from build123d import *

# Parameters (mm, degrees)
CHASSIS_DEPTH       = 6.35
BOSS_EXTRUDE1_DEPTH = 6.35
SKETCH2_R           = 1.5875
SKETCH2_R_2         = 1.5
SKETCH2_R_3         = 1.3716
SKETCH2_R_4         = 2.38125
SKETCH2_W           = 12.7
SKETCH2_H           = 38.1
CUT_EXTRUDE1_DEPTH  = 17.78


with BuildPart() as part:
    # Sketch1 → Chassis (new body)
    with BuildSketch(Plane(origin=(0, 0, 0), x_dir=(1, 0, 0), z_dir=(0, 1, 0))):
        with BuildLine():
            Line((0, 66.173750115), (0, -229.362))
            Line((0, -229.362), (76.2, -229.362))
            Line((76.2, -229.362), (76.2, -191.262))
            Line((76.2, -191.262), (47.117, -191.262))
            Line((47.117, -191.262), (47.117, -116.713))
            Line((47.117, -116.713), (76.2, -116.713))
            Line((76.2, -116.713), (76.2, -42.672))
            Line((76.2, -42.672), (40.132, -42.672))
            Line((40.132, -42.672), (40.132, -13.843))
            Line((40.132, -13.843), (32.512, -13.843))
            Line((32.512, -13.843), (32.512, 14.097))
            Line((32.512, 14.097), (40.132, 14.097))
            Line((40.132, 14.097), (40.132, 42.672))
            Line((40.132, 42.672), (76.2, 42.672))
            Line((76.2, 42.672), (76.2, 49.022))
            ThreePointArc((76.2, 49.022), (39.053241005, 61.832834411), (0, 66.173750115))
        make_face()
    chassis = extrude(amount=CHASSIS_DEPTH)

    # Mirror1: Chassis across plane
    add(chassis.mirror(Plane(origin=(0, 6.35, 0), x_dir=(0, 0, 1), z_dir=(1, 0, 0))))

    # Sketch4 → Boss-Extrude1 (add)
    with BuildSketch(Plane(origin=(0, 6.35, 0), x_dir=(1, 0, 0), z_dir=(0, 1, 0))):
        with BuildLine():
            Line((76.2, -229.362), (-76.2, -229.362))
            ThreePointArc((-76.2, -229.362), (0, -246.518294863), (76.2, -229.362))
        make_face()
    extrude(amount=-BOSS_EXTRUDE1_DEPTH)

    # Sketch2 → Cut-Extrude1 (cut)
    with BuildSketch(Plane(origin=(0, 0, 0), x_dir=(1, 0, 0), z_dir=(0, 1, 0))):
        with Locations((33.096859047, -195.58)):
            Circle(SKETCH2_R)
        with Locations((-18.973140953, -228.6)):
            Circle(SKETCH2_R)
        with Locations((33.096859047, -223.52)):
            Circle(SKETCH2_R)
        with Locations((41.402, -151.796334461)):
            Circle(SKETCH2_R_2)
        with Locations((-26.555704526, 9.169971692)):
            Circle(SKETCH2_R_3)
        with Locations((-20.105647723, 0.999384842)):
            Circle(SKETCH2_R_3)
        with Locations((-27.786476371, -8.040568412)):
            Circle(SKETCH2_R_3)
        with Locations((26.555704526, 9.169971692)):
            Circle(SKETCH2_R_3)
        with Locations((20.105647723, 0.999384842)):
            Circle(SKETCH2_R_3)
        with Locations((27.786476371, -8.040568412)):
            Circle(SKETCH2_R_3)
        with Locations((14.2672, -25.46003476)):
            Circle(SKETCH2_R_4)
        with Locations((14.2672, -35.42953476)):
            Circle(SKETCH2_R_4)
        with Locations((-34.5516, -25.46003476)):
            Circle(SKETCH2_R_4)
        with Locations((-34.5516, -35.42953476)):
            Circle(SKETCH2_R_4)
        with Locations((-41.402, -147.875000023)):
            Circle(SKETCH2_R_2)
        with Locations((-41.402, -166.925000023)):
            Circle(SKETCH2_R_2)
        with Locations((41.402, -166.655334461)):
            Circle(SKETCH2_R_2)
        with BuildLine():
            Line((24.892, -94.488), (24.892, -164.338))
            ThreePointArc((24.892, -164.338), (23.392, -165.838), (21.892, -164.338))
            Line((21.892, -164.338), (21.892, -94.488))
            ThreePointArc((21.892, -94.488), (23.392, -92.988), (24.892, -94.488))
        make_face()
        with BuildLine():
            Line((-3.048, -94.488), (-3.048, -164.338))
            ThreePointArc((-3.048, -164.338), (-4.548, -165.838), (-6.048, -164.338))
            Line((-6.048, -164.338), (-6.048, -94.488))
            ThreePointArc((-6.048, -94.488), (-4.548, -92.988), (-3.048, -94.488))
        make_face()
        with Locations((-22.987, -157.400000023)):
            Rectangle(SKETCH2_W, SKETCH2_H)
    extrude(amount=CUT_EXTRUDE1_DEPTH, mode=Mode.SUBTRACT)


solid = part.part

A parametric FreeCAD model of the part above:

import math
import FreeCAD as App
import Part
import Sketcher
from FreeCAD import Vector
Q = App.Units.Quantity

doc = App.newDocument("Part")
body = doc.addObject("PartDesign::Body", "Body")

sketch1 = body.newObject("Sketcher::SketchObject", "Sketch")
sketch1.AttachmentSupport = (doc.getObject("XZ_Plane"), [""])
sketch1.MapMode = "FlatFace"
sketch1.addGeometry([
    Part.LineSegment(Vector(0, -66, 0), Vector(0, 229, 0)),
    Part.LineSegment(Vector(0, 229, 0), Vector(76, 229, 0)),
    Part.LineSegment(Vector(76, 229, 0), Vector(76, 191, 0)),
    Part.LineSegment(Vector(76, 191, 0), Vector(47, 191, 0)),
    Part.LineSegment(Vector(47, 191, 0), Vector(47, 117, 0)),
    Part.LineSegment(Vector(47, 117, 0), Vector(76, 117, 0)),
    Part.LineSegment(Vector(76, 117, 0), Vector(76, 43, 0)),
    Part.LineSegment(Vector(76, 43, 0), Vector(40, 43, 0)),
    Part.LineSegment(Vector(40, 43, 0), Vector(40, 14, 0)),
    Part.LineSegment(Vector(40, 14, 0), Vector(33, 14, 0)),
    Part.LineSegment(Vector(33, 14, 0), Vector(33, -14, 0)),
    Part.LineSegment(Vector(33, -14, 0), Vector(40, -14, 0)),
    Part.LineSegment(Vector(40, -14, 0), Vector(40, -43, 0)),
    Part.LineSegment(Vector(40, -43, 0), Vector(76, -43, 0)),
    Part.LineSegment(Vector(76, -43, 0), Vector(76, -49, 0)),
    Part.ArcOfCircle(Part.Circle(Vector(0, 112, 0), Vector(0, 0, 1), 178), math.radians(-90), math.radians(-65)),
], False)
sketch1.addConstraint([
    Sketcher.Constraint("Coincident", 0, 2, 1, 1),
    Sketcher.Constraint("Coincident", 1, 2, 2, 1),
    Sketcher.Constraint("Coincident", 2, 2, 3, 1),
    Sketcher.Constraint("Coincident", 3, 2, 4, 1),
    Sketcher.Constraint("Coincident", 4, 2, 5, 1),
    Sketcher.Constraint("Coincident", 5, 2, 6, 1),
    Sketcher.Constraint("Coincident", 6, 2, 7, 1),
    Sketcher.Constraint("Coincident", 7, 2, 8, 1),
    Sketcher.Constraint("Coincident", 8, 2, 9, 1),
    Sketcher.Constraint("Coincident", 9, 2, 10, 1),
    Sketcher.Constraint("Coincident", 10, 2, 11, 1),
    Sketcher.Constraint("Coincident", 11, 2, 12, 1),
    Sketcher.Constraint("Coincident", 12, 2, 13, 1),
    Sketcher.Constraint("Coincident", 13, 2, 14, 1),
    Sketcher.Constraint("Coincident", 14, 2, 15, 2),
    Sketcher.Constraint("Coincident", 15, 1, 0, 1),
    Sketcher.Constraint("Vertical", 0),
    Sketcher.Constraint("Horizontal", 1),
    Sketcher.Constraint("Vertical", 2),
    Sketcher.Constraint("Horizontal", 3),
    Sketcher.Constraint("Vertical", 4),
    Sketcher.Constraint("Horizontal", 5),
    Sketcher.Constraint("Vertical", 6),
    Sketcher.Constraint("Horizontal", 7),
    Sketcher.Constraint("Vertical", 8),
    Sketcher.Constraint("Horizontal", 9),
    Sketcher.Constraint("Vertical", 10),
    Sketcher.Constraint("Horizontal", 11),
    Sketcher.Constraint("Vertical", 12),
    Sketcher.Constraint("Horizontal", 13),
    Sketcher.Constraint("Vertical", 14),
    Sketcher.Constraint("Symmetric", 7, 2, 12, 2, -1),
    Sketcher.Constraint("PointOnObject", 15, 3, -2),
    Sketcher.Constraint("PointOnObject", 0, 2, -2),
    Sketcher.Constraint("Vertical", 2, 2, 5, 2),
    Sketcher.Constraint("Vertical", 6, 2, 13, 2),
    Sketcher.Constraint("DistanceX", 1, 1, 1, 2, Q("3 in")),
    Sketcher.Constraint("DistanceX", 9, 2, 9, 1, Q("0.3 in")),
    Sketcher.Constraint("DistanceY", 2, 2, 2, 1, Q("1.5 in")),
    Sketcher.Constraint("DistanceY", 10, 2, 10, 1, Q("1.1 in")),
    Sketcher.Constraint("DistanceX", 7, 2, 7, 1, Q("1.42 in")),
    Sketcher.Constraint("DistanceY", 14, 2, 14, 1, Q("0.25 in")),
    Sketcher.Constraint("DistanceX", 3, 2, 3, 1, Q("1.145 in")),
    Sketcher.Constraint("DistanceY", 4, 2, 4, 1, Q("2.935 in")),
    Sketcher.Constraint("DistanceY", 6, 2, 6, 1, Q("2.915 in")),
    Sketcher.Constraint("DistanceY", 8, 2, 8, 1, Q("1.135 in")),
    Sketcher.Constraint("DistanceY", 12, 2, 12, 1, Q("1.125 in")),
    Sketcher.Constraint("Radius", 15, 177.842567),
])
pad1 = body.newObject("PartDesign::Pad", "Pad")
pad1.Profile = sketch1
pad1.Length = Q("0.25 in")
pad1.Reversed = True
doc.recompute()

mirrored = body.newObject("PartDesign::Mirrored", "Mirrored")
mirrored.Originals = [pad1]
mirrored.MirrorPlane = (doc.getObject("YZ_Plane"), [""])
body.Tip = mirrored

sketch2 = body.newObject("Sketcher::SketchObject", "Sketch001")
sketch2.AttachmentSupport = (doc.getObject("XZ_Plane"), [""])
sketch2.MapMode = "FlatFace"
sketch2.AttachmentOffset = App.Placement(Vector(0, 0, -0.25 * 25.4), App.Rotation())
sketch2.addGeometry([
    Part.LineSegment(Vector(76, 229, 0), Vector(-76, 229, 0)),
    Part.ArcOfCircle(Part.Circle(Vector(0, 69, 0), Vector(0, 0, 1), 178), math.radians(65), math.radians(115)),
], False)
sketch2.addConstraint([
    Sketcher.Constraint("Coincident", 0, 1, 1, 1),
    Sketcher.Constraint("Coincident", 1, 2, 0, 2),
    Sketcher.Constraint("Horizontal", 0),
    Sketcher.Constraint("PointOnObject", 1, 3, -2),
    Sketcher.Constraint("Radius", 1, Q("7 in")),
    Sketcher.Constraint("DistanceX", 0, 2, 0, 1, Q("6 in")),
    Sketcher.Constraint("DistanceY", -1, 1, 0, 1, Q("9.03 in")),
])
pad2 = body.newObject("PartDesign::Pad", "Pad001")
pad2.Profile = sketch2
pad2.Length = Q("0.25 in")

sketch3 = body.newObject("Sketcher::SketchObject", "Sketch002")
sketch3.AttachmentSupport = (doc.getObject("XZ_Plane"), [""])
sketch3.MapMode = "FlatFace"
sketch3.addGeometry([
    Part.Circle(Vector(33.1, 195.6, 0), Vector(0, 0, 1), 1.6),
    Part.Circle(Vector(-19, 228.6, 0), Vector(0, 0, 1), 1.6),
    Part.Circle(Vector(33.1, 223.5, 0), Vector(0, 0, 1), 1.6),
    Part.Circle(Vector(41.4, 151.8, 0), Vector(0, 0, 1), 1.5),
    Part.Circle(Vector(-26.6, -9.2, 0), Vector(0, 0, 1), 1.4),
    Part.Circle(Vector(-20.1, -1, 0), Vector(0, 0, 1), 1.4),
    Part.Circle(Vector(-27.8, 8, 0), Vector(0, 0, 1), 1.4),
    Part.Circle(Vector(26.6, -9.2, 0), Vector(0, 0, 1), 1.4),
    Part.Circle(Vector(20.1, -1, 0), Vector(0, 0, 1), 1.4),
    Part.Circle(Vector(27.8, 8, 0), Vector(0, 0, 1), 1.4),
    Part.Circle(Vector(14.3, 25.5, 0), Vector(0, 0, 1), 2.4),
    Part.Circle(Vector(14.3, 35.4, 0), Vector(0, 0, 1), 2.4),
    Part.Circle(Vector(-34.6, 25.5, 0), Vector(0, 0, 1), 2.4),
    Part.Circle(Vector(-34.6, 35.4, 0), Vector(0, 0, 1), 2.4),
    Part.Circle(Vector(-41.4, 147.9, 0), Vector(0, 0, 1), 1.5),
    Part.Circle(Vector(-41.4, 166.9, 0), Vector(0, 0, 1), 1.5),
    Part.Circle(Vector(41.4, 166.7, 0), Vector(0, 0, 1), 1.5),
    Part.LineSegment(Vector(24.9, 164.3, 0), Vector(24.9, 94.5, 0)),
    Part.ArcOfCircle(Part.Circle(Vector(23.4, 94.5, 0), Vector(0, 0, 1), 1.5), math.radians(180), math.radians(360)),
    Part.LineSegment(Vector(21.9, 94.5, 0), Vector(21.9, 164.3, 0)),
    Part.ArcOfCircle(Part.Circle(Vector(23.4, 164.3, 0), Vector(0, 0, 1), 1.5), math.radians(0), math.radians(180)),
    Part.LineSegment(Vector(-3, 164.3, 0), Vector(-3, 94.5, 0)),
    Part.ArcOfCircle(Part.Circle(Vector(-4.5, 94.5, 0), Vector(0, 0, 1), 1.5), math.radians(180), math.radians(360)),
    Part.LineSegment(Vector(-6, 94.5, 0), Vector(-6, 164.3, 0)),
    Part.ArcOfCircle(Part.Circle(Vector(-4.5, 164.3, 0), Vector(0, 0, 1), 1.5), math.radians(0), math.radians(180)),
    Part.LineSegment(Vector(-29.3, 138.4, 0), Vector(-29.3, 176.5, 0)),
    Part.LineSegment(Vector(-29.3, 176.5, 0), Vector(-16.6, 176.5, 0)),
    Part.LineSegment(Vector(-16.6, 176.5, 0), Vector(-16.6, 138.4, 0)),
    Part.LineSegment(Vector(-16.6, 138.4, 0), Vector(-29.3, 138.4, 0)),
], False)
sketch3.addConstraint([
    Sketcher.Constraint("Tangent", 17, 2, 18, 2),
    Sketcher.Constraint("Tangent", 18, 1, 19, 1),
    Sketcher.Constraint("Tangent", 19, 2, 20, 2),
    Sketcher.Constraint("Tangent", 20, 1, 17, 1),
    Sketcher.Constraint("Tangent", 21, 2, 22, 2),
    Sketcher.Constraint("Tangent", 22, 1, 23, 1),
    Sketcher.Constraint("Tangent", 23, 2, 24, 2),
    Sketcher.Constraint("Tangent", 24, 1, 21, 1),
    Sketcher.Constraint("Coincident", 25, 2, 26, 1),
    Sketcher.Constraint("Coincident", 26, 2, 27, 1),
    Sketcher.Constraint("Coincident", 27, 2, 28, 1),
    Sketcher.Constraint("Coincident", 28, 2, 25, 1),
    Sketcher.Constraint("Vertical", 17),
    Sketcher.Constraint("Vertical", 19),
    Sketcher.Constraint("Vertical", 21),
    Sketcher.Constraint("Vertical", 23),
    Sketcher.Constraint("Vertical", 25),
    Sketcher.Constraint("Horizontal", 26),
    Sketcher.Constraint("Vertical", 27),
    Sketcher.Constraint("Horizontal", 28),
    Sketcher.Constraint("Equal", 0, 1),
    Sketcher.Constraint("Equal", 1, 2),
    Sketcher.Constraint("Equal", 4, 5),
    Sketcher.Constraint("Equal", 5, 6),
    Sketcher.Constraint("Equal", 6, 7),
    Sketcher.Constraint("Equal", 7, 8),
    Sketcher.Constraint("Equal", 8, 9),
    Sketcher.Constraint("Equal", 10, 11),
    Sketcher.Constraint("Equal", 11, 12),
    Sketcher.Constraint("Equal", 12, 13),
    Sketcher.Constraint("Equal", 3, 14),
    Sketcher.Constraint("Equal", 14, 15),
    Sketcher.Constraint("Equal", 15, 16),
    Sketcher.Constraint("Equal", 16, 18),
    Sketcher.Constraint("Equal", 20, 22),
    Sketcher.Constraint("Symmetric", 4, 3, 7, 3, -2),
    Sketcher.Constraint("Symmetric", 5, 3, 8, 3, -2),
    Sketcher.Constraint("Symmetric", 6, 3, 9, 3, -2),
    Sketcher.Constraint("Horizontal", 10, 3, 12, 3),
    Sketcher.Constraint("Horizontal", 11, 3, 13, 3),
    Sketcher.Constraint("Horizontal", 18, 3, 22, 3),
    Sketcher.Constraint("Horizontal", 20, 3, 24, 3),
    Sketcher.Constraint("Vertical", 0, 3, 2, 3),
    Sketcher.Constraint("Vertical", 10, 3, 11, 3),
    Sketcher.Constraint("Vertical", 12, 3, 13, 3),
    Sketcher.Constraint("Vertical", 14, 3, 15, 3),
    Sketcher.Constraint("Vertical", 3, 3, 16, 3),
    Sketcher.Constraint("Diameter", 0, Q("0.125 in")),
    Sketcher.Constraint("Diameter", 4, Q("0.108 in")),
    Sketcher.Constraint("Diameter", 10, Q("0.1875 in")),
    Sketcher.Constraint("DistanceX", 26, 1, 26, 2, Q("0.5 in")),
    Sketcher.Constraint("DistanceY", 25, 1, 25, 2, Q("1.5 in")),
    Sketcher.Constraint("DistanceY", -1, 1, 1, 3, Q("9 in")),
    Sketcher.Constraint("DistanceY", 17, 2, 17, 1, Q("2.75 in")),
    Sketcher.Constraint("DistanceY", -1, 1, 0, 3, Q("7.7 in")),
    Sketcher.Constraint("DistanceY", -1, 1, 2, 3, Q("8.8 in")),
    Sketcher.Constraint("DistanceX", 22, 3, 18, 3, Q("1.1 in")),
    Sketcher.Constraint("Diameter", 3, 3.0),
    Sketcher.Constraint("DistanceX", -1, 1, 3, 3, Q("1.63 in")),
    Sketcher.Constraint("DistanceX", 14, 3, -1, 1, Q("1.63 in")),
    Sketcher.Constraint("DistanceY", -1, 1, 18, 3, Q("3.72 in")),
    Sketcher.Constraint("DistanceX", -1, 1, 17, 2, Q("0.98 in")),
    Sketcher.Constraint("DistanceX", 1, 3, 0, 3, Q("2.05 in")),
    Sketcher.Constraint("DistanceY", 14, 3, 15, 3, Q("0.75 in")),
    Sketcher.Constraint("DistanceX", 25, 2, -1, 1, Q("1.155 in")),
    Sketcher.Constraint("DistanceX", 12, 3, 10, 3, Q("1.922 in")),
    Sketcher.Constraint("DistanceY", 3, 3, 16, 3, Q("0.585 in")),
    Sketcher.Constraint("DistanceY", 15, 3, 25, 2, Q("0.375 in")),
    Sketcher.Constraint("DistanceX", 4, 3, -1, 1, Q("1.0455002 in")),
    Sketcher.Constraint("DistanceY", 10, 3, 11, 3, Q("0.3925 in")),
    Sketcher.Constraint("DistanceX", -1, 1, 10, 3, 14.2672),
    Sketcher.Constraint("DistanceY", -1, 1, 14, 3, 147.875),
    Sketcher.Constraint("DistanceX", -1, 1, 0, 3, 33.096859),
    Sketcher.Constraint("DistanceY", 4, 3, -1, 1, 9.169972),
    Sketcher.Constraint("DistanceY", -1, 1, 6, 3, 8.040568),
    Sketcher.Constraint("DistanceY", 5, 3, 3, 3, 152.795719),
    Sketcher.Constraint("DistanceX", 6, 3, 5, 3, 7.680829),
    Sketcher.Constraint("DistanceX", 6, 3, 4, 3, 1.230772),
    Sketcher.Constraint("DistanceY", 8, 3, 10, 3, 26.45942),
    Sketcher.Constraint("DistanceY", -1, 1, 3, 3, 151.796334),
])
pocket1 = body.newObject("PartDesign::Pocket", "Pocket")
pocket1.Profile = sketch3
pocket1.Length = Q("0.7 in")

doc.recompute()
